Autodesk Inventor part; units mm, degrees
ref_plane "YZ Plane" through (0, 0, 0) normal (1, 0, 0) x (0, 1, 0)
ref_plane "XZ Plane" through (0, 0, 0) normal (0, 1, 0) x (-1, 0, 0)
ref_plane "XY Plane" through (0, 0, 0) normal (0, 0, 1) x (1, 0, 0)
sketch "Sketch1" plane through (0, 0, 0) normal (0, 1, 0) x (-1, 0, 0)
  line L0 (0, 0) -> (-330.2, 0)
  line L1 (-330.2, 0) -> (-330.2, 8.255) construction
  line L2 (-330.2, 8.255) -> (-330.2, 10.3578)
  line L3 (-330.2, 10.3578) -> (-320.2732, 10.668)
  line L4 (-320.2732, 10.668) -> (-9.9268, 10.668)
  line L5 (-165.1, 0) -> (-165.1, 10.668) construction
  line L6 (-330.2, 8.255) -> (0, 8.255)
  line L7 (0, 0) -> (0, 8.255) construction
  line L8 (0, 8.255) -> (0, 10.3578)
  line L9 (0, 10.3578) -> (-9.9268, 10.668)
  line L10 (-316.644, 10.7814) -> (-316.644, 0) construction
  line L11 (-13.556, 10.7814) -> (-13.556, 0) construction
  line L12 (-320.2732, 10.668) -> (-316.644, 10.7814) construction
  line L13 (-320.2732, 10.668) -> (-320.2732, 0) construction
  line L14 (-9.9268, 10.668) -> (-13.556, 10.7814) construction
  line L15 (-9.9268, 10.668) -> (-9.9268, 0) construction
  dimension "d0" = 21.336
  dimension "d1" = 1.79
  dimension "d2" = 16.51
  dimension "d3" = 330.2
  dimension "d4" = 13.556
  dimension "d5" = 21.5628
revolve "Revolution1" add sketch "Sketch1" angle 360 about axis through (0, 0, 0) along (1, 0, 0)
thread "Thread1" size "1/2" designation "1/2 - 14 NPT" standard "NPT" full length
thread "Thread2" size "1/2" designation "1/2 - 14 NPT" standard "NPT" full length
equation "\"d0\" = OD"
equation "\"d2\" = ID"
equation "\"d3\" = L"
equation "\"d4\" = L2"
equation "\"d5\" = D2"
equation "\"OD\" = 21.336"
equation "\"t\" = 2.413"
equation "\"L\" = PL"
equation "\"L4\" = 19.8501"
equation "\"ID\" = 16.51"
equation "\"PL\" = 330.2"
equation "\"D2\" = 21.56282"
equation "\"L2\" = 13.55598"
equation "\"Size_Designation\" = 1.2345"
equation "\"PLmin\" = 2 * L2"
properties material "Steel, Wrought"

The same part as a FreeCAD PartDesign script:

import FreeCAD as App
import Part
import Sketcher
from FreeCAD import Vector
Q = App.Units.Quantity

doc = App.newDocument("Part")
body = doc.addObject("PartDesign::Body", "Body")

# Sketch on XZ plane
sketch1 = body.newObject("Sketcher::SketchObject", "Sketch")
sketch1.AttachmentSupport = (doc.getObject("XZ_Plane"), [""])
sketch1.MapMode = "FlatFace"
sketch1.addGeometry([
    Part.LineSegment(Vector(330.2, 10.4, 0), Vector(330.2, 8.3, 0)),  # 0
    Part.LineSegment(Vector(330.2, 8.3, 0), Vector(0, 8.3, 0)),  # 1
    Part.LineSegment(Vector(0, 8.3, 0), Vector(0, 10.4, 0)),  # 2
    Part.LineSegment(Vector(0, 10.4, 0), Vector(9.9, 10.7, 0)),  # 3
    Part.LineSegment(Vector(9.9, 10.7, 0), Vector(320.3, 10.7, 0)),  # 4
    Part.LineSegment(Vector(320.3, 10.7, 0), Vector(330.2, 10.4, 0)),  # 5
], False)
sketch1.addConstraint([
    Sketcher.Constraint("Coincident", 0, 2, 1, 1),
    Sketcher.Constraint("Coincident", 1, 2, 2, 1),
    Sketcher.Constraint("Coincident", 2, 2, 3, 1),
    Sketcher.Constraint("Coincident", 3, 2, 4, 1),
    Sketcher.Constraint("Coincident", 4, 2, 5, 1),
    Sketcher.Constraint("Coincident", 5, 2, 0, 1),
    Sketcher.Constraint("Vertical", 0),
    Sketcher.Constraint("Horizontal", 1),
    Sketcher.Constraint("Vertical", 2),
    Sketcher.Constraint("Horizontal", 4),
    Sketcher.Constraint("PointOnObject", 1, 2, -2),
    Sketcher.Constraint("Horizontal", 2, 2, 5, 2),
    Sketcher.Constraint("Equal", 3, 5),
    Sketcher.Constraint("DistanceX", 1, 2, 1, 1, Q("13 in")),
    Sketcher.Constraint("Angle", 3, Q("1.7898 deg")),
    Sketcher.Constraint("DistanceY", -1, 1, 3, 2, Q("0.42 in")),
    Sketcher.Constraint("Distance", 3, Q("0.391 in")),
    Sketcher.Constraint("DistanceY", -1, 1, 0, 2, Q("0.325 in")),
])
revolution = body.newObject("PartDesign::Revolution", "Revolution")
revolution.Profile = sketch1
revolution.ReferenceAxis = (sketch1, ["H_Axis"])
revolution.Angle = 360

doc.recompute()
